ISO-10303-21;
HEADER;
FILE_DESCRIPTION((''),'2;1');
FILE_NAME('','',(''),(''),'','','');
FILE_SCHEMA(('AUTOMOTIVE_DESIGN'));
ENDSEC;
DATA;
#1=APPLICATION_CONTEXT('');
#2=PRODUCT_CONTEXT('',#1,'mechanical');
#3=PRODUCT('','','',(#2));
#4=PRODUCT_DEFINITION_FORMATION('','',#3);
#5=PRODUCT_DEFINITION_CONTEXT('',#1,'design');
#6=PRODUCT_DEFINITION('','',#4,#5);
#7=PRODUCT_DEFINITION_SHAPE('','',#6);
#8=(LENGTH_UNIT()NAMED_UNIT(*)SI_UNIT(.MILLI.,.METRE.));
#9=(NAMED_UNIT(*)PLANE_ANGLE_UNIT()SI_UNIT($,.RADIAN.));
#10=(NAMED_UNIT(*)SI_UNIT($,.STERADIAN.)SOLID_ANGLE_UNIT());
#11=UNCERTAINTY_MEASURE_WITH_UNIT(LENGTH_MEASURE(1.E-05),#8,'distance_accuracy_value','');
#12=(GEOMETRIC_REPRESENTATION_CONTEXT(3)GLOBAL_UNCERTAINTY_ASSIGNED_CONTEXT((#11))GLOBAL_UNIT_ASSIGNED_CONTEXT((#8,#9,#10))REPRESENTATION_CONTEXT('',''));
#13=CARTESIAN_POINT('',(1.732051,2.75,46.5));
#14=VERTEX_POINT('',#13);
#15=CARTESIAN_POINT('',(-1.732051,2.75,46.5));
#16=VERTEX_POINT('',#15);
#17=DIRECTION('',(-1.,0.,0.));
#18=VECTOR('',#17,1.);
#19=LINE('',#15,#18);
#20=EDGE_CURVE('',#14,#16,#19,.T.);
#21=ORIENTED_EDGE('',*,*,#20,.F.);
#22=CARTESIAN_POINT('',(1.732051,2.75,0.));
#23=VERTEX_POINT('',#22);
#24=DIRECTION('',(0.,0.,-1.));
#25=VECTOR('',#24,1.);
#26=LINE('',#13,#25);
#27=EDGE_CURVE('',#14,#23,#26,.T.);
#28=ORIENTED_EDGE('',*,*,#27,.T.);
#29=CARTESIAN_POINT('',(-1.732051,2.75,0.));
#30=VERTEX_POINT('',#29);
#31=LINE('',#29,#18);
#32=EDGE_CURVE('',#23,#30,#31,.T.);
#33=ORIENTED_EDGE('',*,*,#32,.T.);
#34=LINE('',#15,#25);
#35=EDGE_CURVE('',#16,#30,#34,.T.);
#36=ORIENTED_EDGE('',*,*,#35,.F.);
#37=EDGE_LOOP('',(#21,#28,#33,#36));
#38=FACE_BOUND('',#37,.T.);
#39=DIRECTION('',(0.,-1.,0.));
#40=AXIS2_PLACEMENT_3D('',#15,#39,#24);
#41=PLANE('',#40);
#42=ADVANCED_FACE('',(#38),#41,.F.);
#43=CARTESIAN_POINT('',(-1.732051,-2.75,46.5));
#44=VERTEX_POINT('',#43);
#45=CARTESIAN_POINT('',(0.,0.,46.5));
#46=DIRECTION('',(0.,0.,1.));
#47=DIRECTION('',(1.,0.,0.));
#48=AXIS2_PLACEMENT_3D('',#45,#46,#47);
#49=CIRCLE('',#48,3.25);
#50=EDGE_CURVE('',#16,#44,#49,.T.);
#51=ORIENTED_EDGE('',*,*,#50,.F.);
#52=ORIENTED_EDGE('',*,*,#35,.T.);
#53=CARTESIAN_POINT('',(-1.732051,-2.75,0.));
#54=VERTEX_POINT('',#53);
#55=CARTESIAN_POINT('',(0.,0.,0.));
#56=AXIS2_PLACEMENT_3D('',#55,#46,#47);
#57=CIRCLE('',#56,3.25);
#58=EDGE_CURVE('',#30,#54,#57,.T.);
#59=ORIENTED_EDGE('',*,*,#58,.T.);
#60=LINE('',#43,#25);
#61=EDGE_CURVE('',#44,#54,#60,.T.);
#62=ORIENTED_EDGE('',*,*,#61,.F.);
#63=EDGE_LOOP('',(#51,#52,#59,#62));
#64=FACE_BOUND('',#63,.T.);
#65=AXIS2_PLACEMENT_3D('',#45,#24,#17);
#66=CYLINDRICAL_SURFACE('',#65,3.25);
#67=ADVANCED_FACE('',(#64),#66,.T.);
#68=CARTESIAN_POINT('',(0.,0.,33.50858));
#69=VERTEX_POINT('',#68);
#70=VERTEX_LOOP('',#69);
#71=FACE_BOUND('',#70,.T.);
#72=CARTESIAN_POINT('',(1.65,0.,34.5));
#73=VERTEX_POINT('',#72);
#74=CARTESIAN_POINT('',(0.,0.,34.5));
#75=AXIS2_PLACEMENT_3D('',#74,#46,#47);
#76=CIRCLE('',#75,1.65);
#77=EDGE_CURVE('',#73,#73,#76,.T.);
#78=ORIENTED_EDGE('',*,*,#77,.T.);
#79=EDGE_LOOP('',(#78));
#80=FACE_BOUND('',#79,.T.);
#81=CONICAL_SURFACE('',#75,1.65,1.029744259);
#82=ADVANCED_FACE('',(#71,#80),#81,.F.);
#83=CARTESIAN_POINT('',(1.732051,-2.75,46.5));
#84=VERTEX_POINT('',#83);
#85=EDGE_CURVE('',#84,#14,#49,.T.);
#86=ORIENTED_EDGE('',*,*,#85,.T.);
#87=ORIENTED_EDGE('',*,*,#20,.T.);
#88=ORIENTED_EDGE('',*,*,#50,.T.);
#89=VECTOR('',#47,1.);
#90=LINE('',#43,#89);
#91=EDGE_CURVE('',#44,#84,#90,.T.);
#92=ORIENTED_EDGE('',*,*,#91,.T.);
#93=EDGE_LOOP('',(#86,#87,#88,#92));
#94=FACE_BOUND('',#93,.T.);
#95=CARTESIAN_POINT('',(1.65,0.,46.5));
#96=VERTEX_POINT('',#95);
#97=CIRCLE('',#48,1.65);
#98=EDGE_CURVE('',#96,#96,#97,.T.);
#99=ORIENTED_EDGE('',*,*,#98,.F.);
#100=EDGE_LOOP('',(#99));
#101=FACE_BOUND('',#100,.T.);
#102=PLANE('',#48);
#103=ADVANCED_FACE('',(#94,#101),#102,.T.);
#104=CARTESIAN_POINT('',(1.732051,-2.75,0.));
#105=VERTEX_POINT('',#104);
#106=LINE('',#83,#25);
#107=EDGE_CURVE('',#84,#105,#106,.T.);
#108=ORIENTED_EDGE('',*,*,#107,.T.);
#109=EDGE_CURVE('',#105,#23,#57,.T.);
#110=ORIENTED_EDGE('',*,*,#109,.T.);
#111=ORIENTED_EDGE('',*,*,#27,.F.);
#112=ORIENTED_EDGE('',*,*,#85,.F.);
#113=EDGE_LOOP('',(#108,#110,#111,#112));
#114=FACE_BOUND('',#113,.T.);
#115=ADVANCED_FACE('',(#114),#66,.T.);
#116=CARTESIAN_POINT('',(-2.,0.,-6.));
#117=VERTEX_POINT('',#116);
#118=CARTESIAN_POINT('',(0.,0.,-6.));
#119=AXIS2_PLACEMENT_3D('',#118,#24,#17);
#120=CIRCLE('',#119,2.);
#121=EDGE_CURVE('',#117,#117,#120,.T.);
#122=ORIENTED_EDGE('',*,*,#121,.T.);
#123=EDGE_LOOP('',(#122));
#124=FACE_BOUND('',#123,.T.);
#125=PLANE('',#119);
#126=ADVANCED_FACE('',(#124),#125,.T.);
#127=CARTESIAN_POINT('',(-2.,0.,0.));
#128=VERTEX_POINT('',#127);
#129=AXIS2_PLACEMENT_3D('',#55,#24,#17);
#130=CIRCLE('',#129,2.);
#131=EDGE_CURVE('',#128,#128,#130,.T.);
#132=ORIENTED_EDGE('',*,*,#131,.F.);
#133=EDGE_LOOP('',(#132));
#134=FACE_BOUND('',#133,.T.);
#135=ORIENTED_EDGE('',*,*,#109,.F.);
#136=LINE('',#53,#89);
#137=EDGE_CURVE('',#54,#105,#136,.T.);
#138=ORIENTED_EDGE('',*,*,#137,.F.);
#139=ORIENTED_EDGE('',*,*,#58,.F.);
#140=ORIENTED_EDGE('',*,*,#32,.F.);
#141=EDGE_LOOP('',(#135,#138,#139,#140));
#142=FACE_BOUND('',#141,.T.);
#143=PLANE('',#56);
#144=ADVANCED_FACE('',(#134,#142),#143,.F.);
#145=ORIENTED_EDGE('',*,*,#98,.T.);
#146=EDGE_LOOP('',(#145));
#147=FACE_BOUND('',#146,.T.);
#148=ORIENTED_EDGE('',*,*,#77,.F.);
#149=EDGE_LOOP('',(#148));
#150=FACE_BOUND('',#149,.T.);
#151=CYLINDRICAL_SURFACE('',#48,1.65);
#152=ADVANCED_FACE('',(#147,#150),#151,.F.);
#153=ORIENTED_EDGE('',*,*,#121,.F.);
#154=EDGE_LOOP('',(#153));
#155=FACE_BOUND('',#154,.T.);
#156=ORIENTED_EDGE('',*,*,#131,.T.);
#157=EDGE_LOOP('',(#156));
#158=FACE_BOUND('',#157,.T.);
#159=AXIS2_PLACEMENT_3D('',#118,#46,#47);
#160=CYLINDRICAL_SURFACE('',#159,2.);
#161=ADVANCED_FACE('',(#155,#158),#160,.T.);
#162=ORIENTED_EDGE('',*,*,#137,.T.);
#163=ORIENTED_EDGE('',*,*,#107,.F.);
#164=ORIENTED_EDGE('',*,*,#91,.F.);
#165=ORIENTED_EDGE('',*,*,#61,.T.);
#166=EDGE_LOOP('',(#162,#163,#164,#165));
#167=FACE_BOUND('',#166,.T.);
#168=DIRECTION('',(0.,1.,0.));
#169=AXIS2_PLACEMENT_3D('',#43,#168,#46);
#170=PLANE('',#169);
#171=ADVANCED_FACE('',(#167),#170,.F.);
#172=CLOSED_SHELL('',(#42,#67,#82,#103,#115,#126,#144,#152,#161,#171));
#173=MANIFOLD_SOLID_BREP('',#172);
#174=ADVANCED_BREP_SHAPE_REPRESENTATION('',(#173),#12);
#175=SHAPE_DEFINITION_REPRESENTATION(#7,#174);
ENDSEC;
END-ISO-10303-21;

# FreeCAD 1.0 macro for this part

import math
import FreeCAD as App
import Part
import Sketcher

V = App.Vector

doc = App.newDocument("Part")
body = doc.addObject("PartDesign::Body", "Body")

# Sketch on XY plane
sketch1 = body.newObject("Sketcher::SketchObject", "Sketch")
sketch1.AttachmentSupport = (doc.getObject("XY_Plane"), [""])
sketch1.MapMode = "FlatFace"
sketch1.addGeometry(Part.LineSegment(V(1.7, 2.8, 0), V(-1.7, 2.8, 0)), False)
sketch1.addGeometry(Part.ArcOfCircle(Part.Circle(V(0, 0, 0), V(0, 0, 1), 3.2), math.radians(122), math.radians(238)), False)
sketch1.addGeometry(Part.LineSegment(V(-1.7, -2.8, 0), V(1.7, -2.8, 0)), False)
sketch1.addGeometry(Part.ArcOfCircle(Part.Circle(V(0, 0, 0), V(0, 0, 1), 3.2), math.radians(-58), math.radians(58)), False)
sketch1.addConstraint(Sketcher.Constraint("Coincident", 0, 2, 1, 1))
sketch1.addConstraint(Sketcher.Constraint("Coincident", 1, 2, 2, 1))
sketch1.addConstraint(Sketcher.Constraint("Coincident", 2, 2, 3, 1))
sketch1.addConstraint(Sketcher.Constraint("Coincident", 3, 2, 0, 1))
sketch1.addConstraint(Sketcher.Constraint("Horizontal", 0))
sketch1.addConstraint(Sketcher.Constraint("Horizontal", 2))
sketch1.addConstraint(Sketcher.Constraint("Coincident", 1, 3, -1, 1))
sketch1.addConstraint(Sketcher.Constraint("Coincident", 3, 3, -1, 1))
sketch1.addConstraint(Sketcher.Constraint("Equal", 1, 3))
sketch1.addConstraint(Sketcher.Constraint("Vertical", 0, 2, 1, 2))
sketch1.addConstraint(Sketcher.Constraint("Radius", 1, 3.25))
sketch1.addConstraint(Sketcher.Constraint("DistanceY", 1, 2, 0, 2, 5.5))
pad1 = body.newObject("PartDesign::Pad", "Pad")
pad1.Profile = sketch1
pad1.Length = 46.5

# Sketch on XY plane
sketch2 = body.newObject("Sketcher::SketchObject", "Sketch001")
sketch2.AttachmentSupport = (doc.getObject("XY_Plane"), [""])
sketch2.MapMode = "FlatFace"
sketch2.AttachmentOffset = App.Placement(V(0, 0, 46.5), App.Rotation())
sketch2.addGeometry(Part.Circle(V(0, 0, 0), V(0, 0, 1), 1.6), False)
sketch2.addConstraint(Sketcher.Constraint("Coincident", 0, 3, -1, 1))
sketch2.addConstraint(Sketcher.Constraint("Diameter", 0, 3.3))
doc.recompute()
hole = body.newObject("PartDesign::Hole", "Hole")
hole.Profile = sketch2
hole.ThreadType = "None"
hole.Diameter = 3.3
hole.DepthType = "Dimension"
hole.Depth = 12
hole.DrillPoint = "Angled"
hole.DrillPointAngle = 118

# Sketch on XY plane
sketch3 = body.newObject("Sketcher::SketchObject", "Sketch002")
sketch3.AttachmentSupport = (doc.getObject("XY_Plane"), [""])
sketch3.MapMode = "FlatFace"
sketch3.addGeometry(Part.Circle(V(0, 0, 0), V(0, 0, 1), 2), False)
sketch3.addConstraint(Sketcher.Constraint("Coincident", 0, 3, -1, 1))
sketch3.addConstraint(Sketcher.Constraint("Diameter", 0, 4.0))
pad2 = body.newObject("PartDesign::Pad", "Pad001")
pad2.Profile = sketch3
pad2.Length = 6
pad2.Reversed = True

doc.recompute()
